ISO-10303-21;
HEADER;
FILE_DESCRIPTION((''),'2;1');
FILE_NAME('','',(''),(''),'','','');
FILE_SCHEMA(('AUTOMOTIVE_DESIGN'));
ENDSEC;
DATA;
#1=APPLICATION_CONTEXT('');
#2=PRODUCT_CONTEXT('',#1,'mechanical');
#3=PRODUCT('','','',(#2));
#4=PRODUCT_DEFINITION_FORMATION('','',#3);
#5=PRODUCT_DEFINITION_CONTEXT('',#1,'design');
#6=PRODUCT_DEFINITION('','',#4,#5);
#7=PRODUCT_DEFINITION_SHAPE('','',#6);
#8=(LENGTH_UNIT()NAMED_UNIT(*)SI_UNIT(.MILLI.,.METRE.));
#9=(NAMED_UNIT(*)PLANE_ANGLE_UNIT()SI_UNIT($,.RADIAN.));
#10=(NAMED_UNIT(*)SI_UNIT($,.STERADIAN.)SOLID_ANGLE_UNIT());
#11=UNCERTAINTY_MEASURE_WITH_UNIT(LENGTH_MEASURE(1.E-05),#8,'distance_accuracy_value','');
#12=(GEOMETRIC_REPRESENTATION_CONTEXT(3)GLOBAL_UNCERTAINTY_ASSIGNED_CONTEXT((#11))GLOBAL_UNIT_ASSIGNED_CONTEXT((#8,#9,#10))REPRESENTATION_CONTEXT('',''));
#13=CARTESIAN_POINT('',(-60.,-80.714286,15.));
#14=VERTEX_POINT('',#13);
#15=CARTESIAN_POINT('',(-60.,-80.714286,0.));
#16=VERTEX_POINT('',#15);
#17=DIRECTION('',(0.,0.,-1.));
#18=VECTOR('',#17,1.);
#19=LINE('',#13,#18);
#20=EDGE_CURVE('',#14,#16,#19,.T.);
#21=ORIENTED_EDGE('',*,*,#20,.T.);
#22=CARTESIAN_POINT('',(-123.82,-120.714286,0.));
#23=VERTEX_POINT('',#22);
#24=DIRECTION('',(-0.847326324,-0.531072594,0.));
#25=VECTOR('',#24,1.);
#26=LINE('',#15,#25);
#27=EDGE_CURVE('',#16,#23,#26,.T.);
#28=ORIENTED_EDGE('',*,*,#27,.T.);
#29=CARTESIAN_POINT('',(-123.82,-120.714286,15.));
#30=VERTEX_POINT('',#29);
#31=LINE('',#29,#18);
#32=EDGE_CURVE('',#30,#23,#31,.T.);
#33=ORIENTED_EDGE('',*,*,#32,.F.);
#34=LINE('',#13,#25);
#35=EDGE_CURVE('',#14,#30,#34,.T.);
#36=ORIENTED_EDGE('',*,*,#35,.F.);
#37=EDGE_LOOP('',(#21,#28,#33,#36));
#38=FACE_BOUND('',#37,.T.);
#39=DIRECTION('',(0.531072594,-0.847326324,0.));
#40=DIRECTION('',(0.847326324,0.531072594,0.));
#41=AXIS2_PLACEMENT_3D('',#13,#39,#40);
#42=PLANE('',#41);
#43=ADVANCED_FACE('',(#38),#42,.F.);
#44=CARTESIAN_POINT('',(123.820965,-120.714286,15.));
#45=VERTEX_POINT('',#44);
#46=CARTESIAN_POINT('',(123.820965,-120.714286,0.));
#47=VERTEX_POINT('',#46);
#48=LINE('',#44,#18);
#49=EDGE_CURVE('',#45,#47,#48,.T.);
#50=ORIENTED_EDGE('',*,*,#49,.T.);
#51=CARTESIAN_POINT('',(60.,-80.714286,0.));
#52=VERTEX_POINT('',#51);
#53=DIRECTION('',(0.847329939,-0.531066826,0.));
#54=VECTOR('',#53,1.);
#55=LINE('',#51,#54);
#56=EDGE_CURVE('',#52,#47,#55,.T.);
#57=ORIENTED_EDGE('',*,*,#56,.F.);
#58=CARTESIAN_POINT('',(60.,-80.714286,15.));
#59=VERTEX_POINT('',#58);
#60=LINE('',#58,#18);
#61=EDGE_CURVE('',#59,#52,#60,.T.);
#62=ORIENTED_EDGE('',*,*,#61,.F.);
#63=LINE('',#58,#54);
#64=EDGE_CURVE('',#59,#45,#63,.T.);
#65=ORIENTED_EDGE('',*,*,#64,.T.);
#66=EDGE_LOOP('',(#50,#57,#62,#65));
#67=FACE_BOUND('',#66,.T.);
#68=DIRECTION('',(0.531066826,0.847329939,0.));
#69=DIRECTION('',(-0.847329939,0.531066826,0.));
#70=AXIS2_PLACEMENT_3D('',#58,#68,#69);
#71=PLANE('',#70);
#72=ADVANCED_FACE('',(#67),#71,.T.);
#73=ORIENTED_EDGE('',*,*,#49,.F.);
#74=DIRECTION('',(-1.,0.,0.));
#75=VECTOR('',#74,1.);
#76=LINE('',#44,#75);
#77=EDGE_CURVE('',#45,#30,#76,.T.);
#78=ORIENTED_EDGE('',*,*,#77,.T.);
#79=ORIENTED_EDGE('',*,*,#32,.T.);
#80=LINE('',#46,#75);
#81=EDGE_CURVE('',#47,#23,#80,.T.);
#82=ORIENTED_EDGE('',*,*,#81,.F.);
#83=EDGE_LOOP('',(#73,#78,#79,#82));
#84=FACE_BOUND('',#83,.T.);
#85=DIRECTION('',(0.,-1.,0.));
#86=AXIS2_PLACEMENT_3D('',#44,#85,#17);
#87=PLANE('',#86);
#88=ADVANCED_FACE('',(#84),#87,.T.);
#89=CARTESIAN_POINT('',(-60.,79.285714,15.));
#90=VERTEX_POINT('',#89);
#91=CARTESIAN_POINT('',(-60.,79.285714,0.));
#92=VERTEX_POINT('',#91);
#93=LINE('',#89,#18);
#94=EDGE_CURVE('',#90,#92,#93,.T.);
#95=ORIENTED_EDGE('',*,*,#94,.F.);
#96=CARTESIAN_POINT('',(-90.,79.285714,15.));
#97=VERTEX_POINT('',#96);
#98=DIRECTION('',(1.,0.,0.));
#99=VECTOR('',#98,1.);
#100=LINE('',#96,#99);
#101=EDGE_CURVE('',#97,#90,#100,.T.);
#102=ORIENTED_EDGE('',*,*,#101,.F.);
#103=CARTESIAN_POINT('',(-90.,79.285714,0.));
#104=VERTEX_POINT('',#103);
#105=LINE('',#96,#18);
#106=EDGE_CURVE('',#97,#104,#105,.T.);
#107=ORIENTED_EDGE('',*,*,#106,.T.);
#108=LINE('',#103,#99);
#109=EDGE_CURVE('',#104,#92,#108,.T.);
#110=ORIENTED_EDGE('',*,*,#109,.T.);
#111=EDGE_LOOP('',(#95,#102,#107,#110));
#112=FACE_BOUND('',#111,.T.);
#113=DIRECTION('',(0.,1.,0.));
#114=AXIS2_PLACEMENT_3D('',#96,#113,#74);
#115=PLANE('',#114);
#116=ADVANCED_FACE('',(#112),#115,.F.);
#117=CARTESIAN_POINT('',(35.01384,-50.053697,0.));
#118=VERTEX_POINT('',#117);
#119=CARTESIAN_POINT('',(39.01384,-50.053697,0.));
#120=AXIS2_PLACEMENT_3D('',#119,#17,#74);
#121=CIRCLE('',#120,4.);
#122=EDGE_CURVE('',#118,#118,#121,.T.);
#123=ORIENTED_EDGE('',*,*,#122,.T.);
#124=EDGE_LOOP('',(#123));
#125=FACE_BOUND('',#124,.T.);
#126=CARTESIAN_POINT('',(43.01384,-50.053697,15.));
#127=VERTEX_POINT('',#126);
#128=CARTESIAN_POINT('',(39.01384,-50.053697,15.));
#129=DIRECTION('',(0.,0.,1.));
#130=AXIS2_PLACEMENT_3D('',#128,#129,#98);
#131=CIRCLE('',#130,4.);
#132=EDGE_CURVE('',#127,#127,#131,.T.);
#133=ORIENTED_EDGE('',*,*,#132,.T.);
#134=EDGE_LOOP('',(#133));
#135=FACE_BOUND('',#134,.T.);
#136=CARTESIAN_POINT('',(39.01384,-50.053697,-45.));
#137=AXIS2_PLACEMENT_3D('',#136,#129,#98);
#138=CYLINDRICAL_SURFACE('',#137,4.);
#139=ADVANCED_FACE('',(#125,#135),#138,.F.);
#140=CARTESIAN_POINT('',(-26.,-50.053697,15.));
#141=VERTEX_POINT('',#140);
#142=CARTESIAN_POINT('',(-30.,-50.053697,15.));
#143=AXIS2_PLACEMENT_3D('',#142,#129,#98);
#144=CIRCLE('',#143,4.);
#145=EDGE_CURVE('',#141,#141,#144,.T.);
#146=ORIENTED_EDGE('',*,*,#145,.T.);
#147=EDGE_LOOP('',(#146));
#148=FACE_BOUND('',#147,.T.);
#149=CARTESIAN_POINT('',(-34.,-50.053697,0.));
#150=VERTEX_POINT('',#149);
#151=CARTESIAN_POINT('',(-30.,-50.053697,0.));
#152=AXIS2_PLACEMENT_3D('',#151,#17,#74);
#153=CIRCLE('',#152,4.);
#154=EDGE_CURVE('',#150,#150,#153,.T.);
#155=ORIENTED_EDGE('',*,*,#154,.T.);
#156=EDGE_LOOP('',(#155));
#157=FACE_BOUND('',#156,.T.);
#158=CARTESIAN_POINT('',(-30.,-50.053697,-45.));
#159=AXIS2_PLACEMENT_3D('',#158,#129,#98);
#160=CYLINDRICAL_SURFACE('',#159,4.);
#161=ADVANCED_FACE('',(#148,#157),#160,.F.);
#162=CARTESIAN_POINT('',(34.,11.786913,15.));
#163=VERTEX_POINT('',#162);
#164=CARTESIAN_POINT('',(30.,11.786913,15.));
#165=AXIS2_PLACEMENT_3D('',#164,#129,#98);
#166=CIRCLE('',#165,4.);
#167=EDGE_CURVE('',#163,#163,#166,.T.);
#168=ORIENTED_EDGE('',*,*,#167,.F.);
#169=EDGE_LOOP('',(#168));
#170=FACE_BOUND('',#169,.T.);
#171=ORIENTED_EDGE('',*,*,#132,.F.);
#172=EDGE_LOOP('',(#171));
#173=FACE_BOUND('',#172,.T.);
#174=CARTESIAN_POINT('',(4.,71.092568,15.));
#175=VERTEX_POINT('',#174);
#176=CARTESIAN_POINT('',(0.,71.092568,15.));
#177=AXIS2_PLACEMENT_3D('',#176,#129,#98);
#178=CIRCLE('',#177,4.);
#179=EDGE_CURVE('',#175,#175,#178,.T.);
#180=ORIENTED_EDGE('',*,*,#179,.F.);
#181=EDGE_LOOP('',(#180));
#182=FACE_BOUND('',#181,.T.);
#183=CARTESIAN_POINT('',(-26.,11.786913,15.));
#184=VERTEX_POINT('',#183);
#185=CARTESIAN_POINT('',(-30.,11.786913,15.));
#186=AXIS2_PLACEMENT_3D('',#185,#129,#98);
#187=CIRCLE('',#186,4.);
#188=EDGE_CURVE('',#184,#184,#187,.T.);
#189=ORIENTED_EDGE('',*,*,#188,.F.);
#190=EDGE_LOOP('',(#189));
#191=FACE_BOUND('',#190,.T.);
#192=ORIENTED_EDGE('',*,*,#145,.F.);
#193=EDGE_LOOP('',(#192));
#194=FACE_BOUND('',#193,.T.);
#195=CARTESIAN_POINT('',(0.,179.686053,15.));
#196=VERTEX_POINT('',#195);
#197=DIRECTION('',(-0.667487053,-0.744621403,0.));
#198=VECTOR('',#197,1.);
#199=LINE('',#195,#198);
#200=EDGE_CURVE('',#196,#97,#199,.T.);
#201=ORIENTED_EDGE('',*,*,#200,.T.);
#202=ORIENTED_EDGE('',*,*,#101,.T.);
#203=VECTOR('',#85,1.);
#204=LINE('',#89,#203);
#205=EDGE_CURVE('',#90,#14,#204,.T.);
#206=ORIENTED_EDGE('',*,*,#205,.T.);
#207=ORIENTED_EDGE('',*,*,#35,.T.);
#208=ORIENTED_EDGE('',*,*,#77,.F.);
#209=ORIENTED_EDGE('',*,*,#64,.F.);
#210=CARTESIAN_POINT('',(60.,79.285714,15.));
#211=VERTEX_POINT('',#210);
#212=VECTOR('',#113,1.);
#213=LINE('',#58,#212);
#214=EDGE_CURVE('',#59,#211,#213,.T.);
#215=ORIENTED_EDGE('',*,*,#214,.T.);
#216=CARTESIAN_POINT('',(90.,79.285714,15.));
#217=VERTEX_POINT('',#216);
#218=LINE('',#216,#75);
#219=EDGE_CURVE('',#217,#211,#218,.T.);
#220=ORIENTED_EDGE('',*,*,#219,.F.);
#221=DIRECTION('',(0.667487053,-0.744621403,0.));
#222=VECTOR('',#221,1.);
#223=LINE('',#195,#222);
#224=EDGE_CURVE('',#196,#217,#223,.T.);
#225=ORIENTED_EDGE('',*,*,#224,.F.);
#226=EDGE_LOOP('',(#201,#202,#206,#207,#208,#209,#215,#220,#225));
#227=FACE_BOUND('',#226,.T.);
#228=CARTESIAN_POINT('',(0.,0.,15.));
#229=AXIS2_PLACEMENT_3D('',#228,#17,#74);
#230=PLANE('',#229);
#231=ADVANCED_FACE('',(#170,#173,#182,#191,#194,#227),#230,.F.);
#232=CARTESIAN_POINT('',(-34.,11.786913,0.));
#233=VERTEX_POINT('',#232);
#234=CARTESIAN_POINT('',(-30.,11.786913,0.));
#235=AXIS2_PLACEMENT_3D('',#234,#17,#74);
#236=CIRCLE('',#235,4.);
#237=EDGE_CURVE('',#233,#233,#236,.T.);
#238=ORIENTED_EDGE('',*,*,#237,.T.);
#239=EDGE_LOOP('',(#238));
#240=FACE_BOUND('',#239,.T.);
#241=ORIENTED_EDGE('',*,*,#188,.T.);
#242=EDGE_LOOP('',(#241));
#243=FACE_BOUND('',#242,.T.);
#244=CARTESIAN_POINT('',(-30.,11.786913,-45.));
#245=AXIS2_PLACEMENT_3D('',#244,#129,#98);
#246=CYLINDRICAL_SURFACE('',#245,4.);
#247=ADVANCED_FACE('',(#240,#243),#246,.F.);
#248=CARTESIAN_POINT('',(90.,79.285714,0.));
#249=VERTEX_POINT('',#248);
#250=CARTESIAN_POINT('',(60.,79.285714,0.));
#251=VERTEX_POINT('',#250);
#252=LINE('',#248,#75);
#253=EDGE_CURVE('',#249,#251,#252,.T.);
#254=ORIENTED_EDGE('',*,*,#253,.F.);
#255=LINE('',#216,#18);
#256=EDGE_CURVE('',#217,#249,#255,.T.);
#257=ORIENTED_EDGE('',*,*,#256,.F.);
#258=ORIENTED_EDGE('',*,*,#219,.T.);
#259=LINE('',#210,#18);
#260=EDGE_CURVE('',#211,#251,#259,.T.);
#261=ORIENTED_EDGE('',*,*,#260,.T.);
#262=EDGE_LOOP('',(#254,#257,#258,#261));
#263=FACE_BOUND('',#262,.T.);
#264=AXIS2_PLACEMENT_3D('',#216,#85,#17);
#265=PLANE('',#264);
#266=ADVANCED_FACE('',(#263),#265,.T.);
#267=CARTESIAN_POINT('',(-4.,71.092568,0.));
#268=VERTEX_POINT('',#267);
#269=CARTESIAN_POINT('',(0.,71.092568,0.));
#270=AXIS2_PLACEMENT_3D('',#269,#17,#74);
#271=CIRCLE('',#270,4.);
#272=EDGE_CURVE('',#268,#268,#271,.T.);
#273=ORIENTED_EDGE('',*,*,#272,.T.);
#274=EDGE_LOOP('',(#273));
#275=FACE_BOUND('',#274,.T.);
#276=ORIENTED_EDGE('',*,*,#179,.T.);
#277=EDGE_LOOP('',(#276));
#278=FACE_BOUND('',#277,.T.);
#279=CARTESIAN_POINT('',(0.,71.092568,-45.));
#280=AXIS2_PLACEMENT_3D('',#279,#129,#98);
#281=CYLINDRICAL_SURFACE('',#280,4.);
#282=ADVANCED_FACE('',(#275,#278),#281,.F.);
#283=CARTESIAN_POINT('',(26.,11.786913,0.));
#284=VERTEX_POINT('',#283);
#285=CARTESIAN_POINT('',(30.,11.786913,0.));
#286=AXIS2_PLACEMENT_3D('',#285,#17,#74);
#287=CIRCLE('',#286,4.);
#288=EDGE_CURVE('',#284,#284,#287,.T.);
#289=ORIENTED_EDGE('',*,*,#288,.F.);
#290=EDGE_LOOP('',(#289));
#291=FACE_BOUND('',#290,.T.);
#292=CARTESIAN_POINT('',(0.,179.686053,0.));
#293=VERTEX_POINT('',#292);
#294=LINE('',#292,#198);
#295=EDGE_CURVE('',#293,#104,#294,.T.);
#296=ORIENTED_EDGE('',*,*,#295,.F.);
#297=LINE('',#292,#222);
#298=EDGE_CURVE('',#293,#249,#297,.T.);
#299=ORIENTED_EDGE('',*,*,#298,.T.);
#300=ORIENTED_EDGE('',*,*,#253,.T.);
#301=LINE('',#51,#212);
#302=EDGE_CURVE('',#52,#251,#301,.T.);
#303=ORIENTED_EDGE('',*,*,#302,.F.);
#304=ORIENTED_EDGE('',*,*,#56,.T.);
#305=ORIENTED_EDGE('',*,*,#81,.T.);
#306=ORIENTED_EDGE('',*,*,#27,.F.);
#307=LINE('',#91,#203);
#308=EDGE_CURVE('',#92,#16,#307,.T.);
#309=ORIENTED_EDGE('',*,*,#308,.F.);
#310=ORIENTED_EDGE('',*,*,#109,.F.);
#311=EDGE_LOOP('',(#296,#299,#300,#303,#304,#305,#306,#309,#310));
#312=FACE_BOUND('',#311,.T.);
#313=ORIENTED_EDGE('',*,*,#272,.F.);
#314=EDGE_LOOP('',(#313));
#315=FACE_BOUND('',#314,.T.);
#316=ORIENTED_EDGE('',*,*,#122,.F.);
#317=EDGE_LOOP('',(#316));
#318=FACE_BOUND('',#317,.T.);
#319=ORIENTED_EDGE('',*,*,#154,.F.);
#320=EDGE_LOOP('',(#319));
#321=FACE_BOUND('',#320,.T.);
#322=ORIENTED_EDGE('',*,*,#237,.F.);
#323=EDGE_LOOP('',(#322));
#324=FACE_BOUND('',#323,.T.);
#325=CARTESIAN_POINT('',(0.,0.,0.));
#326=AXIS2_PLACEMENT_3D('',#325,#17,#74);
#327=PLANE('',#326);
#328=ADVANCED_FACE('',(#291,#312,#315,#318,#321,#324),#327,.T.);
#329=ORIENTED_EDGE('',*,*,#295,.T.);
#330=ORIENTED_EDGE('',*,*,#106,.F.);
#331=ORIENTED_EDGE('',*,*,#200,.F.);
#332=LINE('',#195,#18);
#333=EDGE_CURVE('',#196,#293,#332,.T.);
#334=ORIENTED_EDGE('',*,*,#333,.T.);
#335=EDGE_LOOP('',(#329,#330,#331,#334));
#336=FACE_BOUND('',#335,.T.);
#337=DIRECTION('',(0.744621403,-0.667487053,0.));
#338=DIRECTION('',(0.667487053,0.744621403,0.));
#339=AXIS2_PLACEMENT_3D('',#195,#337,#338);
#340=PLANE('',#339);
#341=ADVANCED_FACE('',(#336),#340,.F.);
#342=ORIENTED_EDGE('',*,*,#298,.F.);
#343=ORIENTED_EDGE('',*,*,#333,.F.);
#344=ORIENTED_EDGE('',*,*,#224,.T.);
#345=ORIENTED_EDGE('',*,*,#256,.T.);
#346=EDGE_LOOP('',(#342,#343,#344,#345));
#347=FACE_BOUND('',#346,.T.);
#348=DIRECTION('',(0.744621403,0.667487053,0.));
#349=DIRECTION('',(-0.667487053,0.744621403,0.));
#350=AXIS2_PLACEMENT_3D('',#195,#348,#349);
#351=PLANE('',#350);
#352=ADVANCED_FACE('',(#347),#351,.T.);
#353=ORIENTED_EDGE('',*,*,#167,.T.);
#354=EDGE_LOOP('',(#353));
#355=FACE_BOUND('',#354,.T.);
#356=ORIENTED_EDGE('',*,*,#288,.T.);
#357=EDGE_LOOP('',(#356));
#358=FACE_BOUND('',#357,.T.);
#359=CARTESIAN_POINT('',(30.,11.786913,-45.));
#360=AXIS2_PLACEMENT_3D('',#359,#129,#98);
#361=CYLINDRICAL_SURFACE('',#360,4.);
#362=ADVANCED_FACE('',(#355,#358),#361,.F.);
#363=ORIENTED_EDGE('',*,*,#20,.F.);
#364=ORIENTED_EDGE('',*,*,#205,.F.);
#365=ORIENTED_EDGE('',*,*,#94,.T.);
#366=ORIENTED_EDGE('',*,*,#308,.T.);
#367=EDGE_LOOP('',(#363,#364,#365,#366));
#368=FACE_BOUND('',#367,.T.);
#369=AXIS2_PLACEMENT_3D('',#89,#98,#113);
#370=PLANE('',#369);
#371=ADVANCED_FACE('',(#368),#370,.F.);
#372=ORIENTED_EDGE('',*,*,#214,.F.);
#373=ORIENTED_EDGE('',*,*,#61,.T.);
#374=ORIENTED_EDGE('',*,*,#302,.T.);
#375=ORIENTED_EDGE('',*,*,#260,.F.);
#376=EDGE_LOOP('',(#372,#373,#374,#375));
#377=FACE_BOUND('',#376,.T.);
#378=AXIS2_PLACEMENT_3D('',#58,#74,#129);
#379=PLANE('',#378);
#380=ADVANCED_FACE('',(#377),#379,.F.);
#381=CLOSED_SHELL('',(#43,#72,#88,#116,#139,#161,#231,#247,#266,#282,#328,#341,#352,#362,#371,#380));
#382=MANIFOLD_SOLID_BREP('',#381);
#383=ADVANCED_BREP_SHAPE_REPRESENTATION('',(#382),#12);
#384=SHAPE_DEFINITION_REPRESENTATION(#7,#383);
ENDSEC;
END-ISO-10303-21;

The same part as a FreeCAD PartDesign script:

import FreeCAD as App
import Part
import Sketcher

doc = App.newDocument("Part")
body = doc.addObject("PartDesign::Body", "Body")

# Sketch on XY plane
sketch1 = body.newObject("Sketcher::SketchObject", "Sketch")
sketch1.AttachmentSupport = (doc.getObject("XY_Plane"), [""])
sketch1.MapMode = "FlatFace"
sketch1.addGeometry([
    Part.LineSegment(App.Vector(124, -121, 0), App.Vector(60, -81, 0)),  # 0
    Part.LineSegment(App.Vector(60, -81, 0), App.Vector(60, 79, 0)),  # 1
    Part.LineSegment(App.Vector(60, 79, 0), App.Vector(90, 79, 0)),  # 2
    Part.LineSegment(App.Vector(90, 79, 0), App.Vector(0, 180, 0)),  # 3
    Part.LineSegment(App.Vector(0, 180, 0), App.Vector(-90, 79, 0)),  # 4
    Part.LineSegment(App.Vector(-90, 79, 0), App.Vector(-60, 79, 0)),  # 5
    Part.LineSegment(App.Vector(-60, 79, 0), App.Vector(-60, -81, 0)),  # 6
    Part.LineSegment(App.Vector(-60, -81, 0), App.Vector(-124, -121, 0)),  # 7
    Part.LineSegment(App.Vector(-124, -121, 0), App.Vector(124, -121, 0)),  # 8
], False)
sketch1.addConstraint([
    Sketcher.Constraint("Coincident", 0, 2, 1, 1),
    Sketcher.Constraint("Coincident", 1, 2, 2, 1),
    Sketcher.Constraint("Coincident", 2, 2, 3, 1),
    Sketcher.Constraint("Coincident", 3, 2, 4, 1),
    Sketcher.Constraint("Coincident", 4, 2, 5, 1),
    Sketcher.Constraint("Coincident", 5, 2, 6, 1),
    Sketcher.Constraint("Coincident", 6, 2, 7, 1),
    Sketcher.Constraint("Coincident", 7, 2, 8, 1),
    Sketcher.Constraint("Coincident", 8, 2, 0, 1),
    Sketcher.Constraint("Vertical", 1),
    Sketcher.Constraint("Horizontal", 2),
    Sketcher.Constraint("Horizontal", 5),
    Sketcher.Constraint("Vertical", 6),
    Sketcher.Constraint("Horizontal", 8),
    Sketcher.Constraint("Symmetric", 2, 2, 4, 2, -2),
    Sketcher.Constraint("Symmetric", 0, 2, 6, 2, -2),
    Sketcher.Constraint("PointOnObject", 3, 2, -2),
    Sketcher.Constraint("DistanceX", 2, 1, 2, 2, 30.0),
    Sketcher.Constraint("DistanceY", 1, 1, 1, 2, 160.0),
    Sketcher.Constraint("DistanceX", -1, 1, 0, 2, 60.0),
    Sketcher.Constraint("DistanceY", 7, 2, 6, 2, 40.0),
    Sketcher.Constraint("DistanceX", 7, 2, -1, 1, 123.82),
    Sketcher.Constraint("DistanceX", 8, 1, 8, 2, 247.640965),
    Sketcher.Constraint("DistanceY", 1, 2, 3, 2, 100.400339),
    Sketcher.Constraint("DistanceY", 0, 2, -1, 1, 80.714286),
])
pad1 = body.newObject("PartDesign::Pad", "Pad")
pad1.Profile = sketch1
pad1.Length = 15

# Sketch on XY plane
sketch2 = body.newObject("Sketcher::SketchObject", "Sketch001")
sketch2.AttachmentSupport = (doc.getObject("XY_Plane"), [""])
sketch2.MapMode = "FlatFace"
sketch2.AttachmentOffset = App.Placement(App.Vector(0, 0, 15), App.Rotation())
sketch2.addGeometry(Part.Circle(App.Vector(0, 71.1, 0), App.Vector(0, 0, 1), 4), False)
sketch2.addConstraint([
    Sketcher.Constraint("PointOnObject", 0, 3, -2),
    Sketcher.Constraint("Diameter", 0, 8.0),
    Sketcher.Constraint("DistanceY", -1, 1, 0, 3, 71.092568),
])
pocket1 = body.newObject("PartDesign::Pocket", "Pocket")
pocket1.Profile = sketch2
pocket1.Length = 60

# Sketch on XY plane
sketch3 = body.newObject("Sketcher::SketchObject", "Sketch002")
sketch3.AttachmentSupport = (doc.getObject("XY_Plane"), [""])
sketch3.MapMode = "FlatFace"
sketch3.AttachmentOffset = App.Placement(App.Vector(0, 0, 15), App.Rotation())
sketch3.addGeometry([
    Part.Circle(App.Vector(30, 11.8, 0), App.Vector(0, 0, 1), 4),
    Part.Circle(App.Vector(39, -50.1, 0), App.Vector(0, 0, 1), 4),
    Part.Circle(App.Vector(-30, 11.8, 0), App.Vector(0, 0, 1), 4),
    Part.Circle(App.Vector(-30, -50.1, 0), App.Vector(0, 0, 1), 4),
], False)
sketch3.addConstraint([
    Sketcher.Constraint("Equal", 0, 1),
    Sketcher.Constraint("Equal", 1, 2),
    Sketcher.Constraint("Equal", 2, 3),
    Sketcher.Constraint("Symmetric", 0, 3, 2, 3, -2),
    Sketcher.Constraint("Horizontal", 1, 3, 3, 3),
    Sketcher.Constraint("Vertical", 2, 3, 3, 3),
    Sketcher.Constraint("Diameter", 0, 8.0),
    Sketcher.Constraint("DistanceX", -1, 1, 0, 3, 30.0),
    Sketcher.Constraint("DistanceX", -1, 1, 1, 3, 39.01384),
    Sketcher.Constraint("DistanceY", 1, 3, 0, 3, 61.84061),
    Sketcher.Constraint("DistanceY", -1, 1, 0, 3, 11.786913),
])
pocket2 = body.newObject("PartDesign::Pocket", "Pocket001")
pocket2.Profile = sketch3
pocket2.Length = 60

doc.recompute()
